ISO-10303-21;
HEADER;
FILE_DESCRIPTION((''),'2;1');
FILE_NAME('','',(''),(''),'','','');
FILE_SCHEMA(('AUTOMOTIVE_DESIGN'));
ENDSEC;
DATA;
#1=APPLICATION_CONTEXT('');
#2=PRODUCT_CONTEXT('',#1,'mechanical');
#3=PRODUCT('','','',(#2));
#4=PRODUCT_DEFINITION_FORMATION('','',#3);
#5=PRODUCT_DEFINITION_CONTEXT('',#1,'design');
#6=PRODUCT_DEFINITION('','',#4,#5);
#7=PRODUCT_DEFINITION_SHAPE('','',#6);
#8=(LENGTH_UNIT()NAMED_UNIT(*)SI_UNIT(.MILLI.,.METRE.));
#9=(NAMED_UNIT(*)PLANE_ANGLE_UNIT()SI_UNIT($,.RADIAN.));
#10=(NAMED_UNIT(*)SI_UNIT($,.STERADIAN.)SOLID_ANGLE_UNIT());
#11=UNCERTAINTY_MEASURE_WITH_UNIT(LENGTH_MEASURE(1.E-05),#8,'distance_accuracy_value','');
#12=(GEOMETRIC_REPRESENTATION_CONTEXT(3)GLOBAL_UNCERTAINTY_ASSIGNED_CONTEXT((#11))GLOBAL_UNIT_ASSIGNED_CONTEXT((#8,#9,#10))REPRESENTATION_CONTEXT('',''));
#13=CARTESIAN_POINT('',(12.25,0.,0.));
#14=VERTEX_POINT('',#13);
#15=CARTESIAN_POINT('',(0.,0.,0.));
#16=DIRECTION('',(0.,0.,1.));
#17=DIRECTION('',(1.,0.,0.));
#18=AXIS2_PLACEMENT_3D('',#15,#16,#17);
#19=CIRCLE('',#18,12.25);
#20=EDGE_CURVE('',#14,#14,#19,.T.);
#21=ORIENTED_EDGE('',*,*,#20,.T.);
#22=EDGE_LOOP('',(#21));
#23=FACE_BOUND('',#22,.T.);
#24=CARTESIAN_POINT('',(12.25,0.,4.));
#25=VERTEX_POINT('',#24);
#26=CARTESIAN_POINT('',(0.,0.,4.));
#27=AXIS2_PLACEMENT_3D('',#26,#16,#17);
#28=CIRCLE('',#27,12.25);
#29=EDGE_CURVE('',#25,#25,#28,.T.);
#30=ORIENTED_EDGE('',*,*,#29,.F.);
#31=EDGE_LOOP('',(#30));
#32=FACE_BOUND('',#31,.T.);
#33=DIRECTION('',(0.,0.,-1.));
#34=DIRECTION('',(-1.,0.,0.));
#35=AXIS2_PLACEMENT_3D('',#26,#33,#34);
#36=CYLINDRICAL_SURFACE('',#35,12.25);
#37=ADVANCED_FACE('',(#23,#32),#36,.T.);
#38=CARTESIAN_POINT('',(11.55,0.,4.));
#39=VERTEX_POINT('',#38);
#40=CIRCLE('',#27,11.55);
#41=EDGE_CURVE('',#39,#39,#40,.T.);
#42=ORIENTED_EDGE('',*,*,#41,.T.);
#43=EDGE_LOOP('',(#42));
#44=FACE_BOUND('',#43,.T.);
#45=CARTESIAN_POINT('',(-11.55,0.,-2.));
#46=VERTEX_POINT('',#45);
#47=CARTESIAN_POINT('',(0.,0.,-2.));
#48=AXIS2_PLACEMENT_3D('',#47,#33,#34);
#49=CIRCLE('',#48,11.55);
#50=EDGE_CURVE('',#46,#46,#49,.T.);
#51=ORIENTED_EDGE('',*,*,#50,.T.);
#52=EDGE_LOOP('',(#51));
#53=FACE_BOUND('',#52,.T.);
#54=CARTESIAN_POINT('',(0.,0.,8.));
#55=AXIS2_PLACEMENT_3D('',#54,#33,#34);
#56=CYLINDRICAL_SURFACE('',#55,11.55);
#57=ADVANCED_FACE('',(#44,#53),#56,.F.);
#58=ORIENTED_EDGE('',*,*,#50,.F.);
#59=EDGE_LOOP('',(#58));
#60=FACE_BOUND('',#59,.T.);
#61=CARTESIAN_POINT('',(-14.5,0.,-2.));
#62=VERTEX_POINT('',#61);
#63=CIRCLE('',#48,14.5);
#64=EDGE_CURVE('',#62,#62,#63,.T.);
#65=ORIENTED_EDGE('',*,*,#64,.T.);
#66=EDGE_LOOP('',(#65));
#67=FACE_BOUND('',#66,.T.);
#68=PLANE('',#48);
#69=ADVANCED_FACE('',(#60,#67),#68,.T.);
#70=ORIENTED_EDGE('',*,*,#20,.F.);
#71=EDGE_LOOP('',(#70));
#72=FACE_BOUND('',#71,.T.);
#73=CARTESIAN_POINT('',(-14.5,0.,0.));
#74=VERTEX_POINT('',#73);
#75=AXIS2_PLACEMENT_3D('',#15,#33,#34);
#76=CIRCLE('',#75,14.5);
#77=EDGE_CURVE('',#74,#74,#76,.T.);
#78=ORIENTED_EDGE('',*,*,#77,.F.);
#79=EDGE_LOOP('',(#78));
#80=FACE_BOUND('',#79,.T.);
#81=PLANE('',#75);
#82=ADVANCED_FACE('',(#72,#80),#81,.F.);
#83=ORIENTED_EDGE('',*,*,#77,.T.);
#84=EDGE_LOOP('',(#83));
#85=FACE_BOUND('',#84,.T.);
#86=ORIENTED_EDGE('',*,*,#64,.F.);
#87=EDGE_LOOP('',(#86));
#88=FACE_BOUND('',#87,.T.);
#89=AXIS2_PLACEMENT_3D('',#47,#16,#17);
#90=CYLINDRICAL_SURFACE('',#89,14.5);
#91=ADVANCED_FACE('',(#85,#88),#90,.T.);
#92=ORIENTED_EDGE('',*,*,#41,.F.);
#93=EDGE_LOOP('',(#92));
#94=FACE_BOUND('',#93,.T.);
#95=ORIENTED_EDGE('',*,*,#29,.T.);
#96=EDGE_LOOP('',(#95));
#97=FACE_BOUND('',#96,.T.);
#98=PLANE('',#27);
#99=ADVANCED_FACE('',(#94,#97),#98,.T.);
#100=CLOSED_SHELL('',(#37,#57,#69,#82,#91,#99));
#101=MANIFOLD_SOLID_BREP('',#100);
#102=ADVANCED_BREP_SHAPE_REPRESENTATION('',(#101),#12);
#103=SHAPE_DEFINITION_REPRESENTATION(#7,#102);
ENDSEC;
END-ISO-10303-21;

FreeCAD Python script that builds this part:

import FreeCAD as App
import Part
import Sketcher

V = App.Vector
Q = App.Units.Quantity

doc = App.newDocument("Part")
params = doc.addObject("Spreadsheet::Sheet", "Params")
for row, (alias, value) in enumerate([
    ("sketch1_diameter", "24.5 mm"),
    ("pad1_length", "4 mm"),
    ("sketch2_diameter", "29 mm"),
    ("pad2_length", "2 mm"),
    ("sketch3_diameter", "23.1 mm"),
    ("pocket1_length", "10 mm"),
], start=1):
    params.set(f"A{row}", alias)
    params.set(f"B{row}", "=" + value)
    params.setAlias(f"B{row}", alias)

body = doc.addObject("PartDesign::Body", "Body")

sketch1 = body.newObject("Sketcher::SketchObject", "Sketch")
sketch1.AttachmentSupport = (doc.getObject("XY_Plane"), [""])
sketch1.MapMode = "FlatFace"
sketch1.addGeometry(Part.Circle(V(0, 0, 0), V(0, 0, 1), 12), False)
sketch1.addConstraint(Sketcher.Constraint("Coincident", 0, 3, -1, 1))
sketch1.addConstraint(Sketcher.Constraint("Diameter", 0, Q("24.5 mm")))
sketch1.setExpression("Constraints[1]", "Params.sketch1_diameter")
pad1 = body.newObject("PartDesign::Pad", "Pad")
pad1.Profile = sketch1
pad1.setExpression("Length", "Params.pad1_length")

sketch2 = body.newObject("Sketcher::SketchObject", "Sketch001")
sketch2.AttachmentSupport = (doc.getObject("XY_Plane"), [""])
sketch2.MapMode = "FlatFace"
sketch2.addGeometry(Part.Circle(V(0, 0, 0), V(0, 0, 1), 14), False)
sketch2.addConstraint(Sketcher.Constraint("Coincident", 0, 3, -1, 1))
sketch2.addConstraint(Sketcher.Constraint("Diameter", 0, Q("29 mm")))
sketch2.setExpression("Constraints[1]", "Params.sketch2_diameter")
pad2 = body.newObject("PartDesign::Pad", "Pad001")
pad2.Profile = sketch2
pad2.setExpression("Length", "Params.pad2_length")
pad2.Reversed = True

sketch3 = body.newObject("Sketcher::SketchObject", "Sketch002")
sketch3.AttachmentSupport = (doc.getObject("XY_Plane"), [""])
sketch3.MapMode = "FlatFace"
sketch3.AttachmentOffset = App.Placement(V(0, 0, -2), App.Rotation())
sketch3.addGeometry(Part.Circle(V(0, 0, 0), V(0, 0, 1), 12), False)
sketch3.addConstraint(Sketcher.Constraint("Coincident", 0, 3, -1, 1))
sketch3.addConstraint(Sketcher.Constraint("Diameter", 0, Q("23.1 mm")))
sketch3.setExpression("Constraints[1]", "Params.sketch3_diameter")
pocket1 = body.newObject("PartDesign::Pocket", "Pocket")
pocket1.Profile = sketch3
pocket1.setExpression("Length", "Params.pocket1_length")
pocket1.Reversed = True

doc.recompute()
